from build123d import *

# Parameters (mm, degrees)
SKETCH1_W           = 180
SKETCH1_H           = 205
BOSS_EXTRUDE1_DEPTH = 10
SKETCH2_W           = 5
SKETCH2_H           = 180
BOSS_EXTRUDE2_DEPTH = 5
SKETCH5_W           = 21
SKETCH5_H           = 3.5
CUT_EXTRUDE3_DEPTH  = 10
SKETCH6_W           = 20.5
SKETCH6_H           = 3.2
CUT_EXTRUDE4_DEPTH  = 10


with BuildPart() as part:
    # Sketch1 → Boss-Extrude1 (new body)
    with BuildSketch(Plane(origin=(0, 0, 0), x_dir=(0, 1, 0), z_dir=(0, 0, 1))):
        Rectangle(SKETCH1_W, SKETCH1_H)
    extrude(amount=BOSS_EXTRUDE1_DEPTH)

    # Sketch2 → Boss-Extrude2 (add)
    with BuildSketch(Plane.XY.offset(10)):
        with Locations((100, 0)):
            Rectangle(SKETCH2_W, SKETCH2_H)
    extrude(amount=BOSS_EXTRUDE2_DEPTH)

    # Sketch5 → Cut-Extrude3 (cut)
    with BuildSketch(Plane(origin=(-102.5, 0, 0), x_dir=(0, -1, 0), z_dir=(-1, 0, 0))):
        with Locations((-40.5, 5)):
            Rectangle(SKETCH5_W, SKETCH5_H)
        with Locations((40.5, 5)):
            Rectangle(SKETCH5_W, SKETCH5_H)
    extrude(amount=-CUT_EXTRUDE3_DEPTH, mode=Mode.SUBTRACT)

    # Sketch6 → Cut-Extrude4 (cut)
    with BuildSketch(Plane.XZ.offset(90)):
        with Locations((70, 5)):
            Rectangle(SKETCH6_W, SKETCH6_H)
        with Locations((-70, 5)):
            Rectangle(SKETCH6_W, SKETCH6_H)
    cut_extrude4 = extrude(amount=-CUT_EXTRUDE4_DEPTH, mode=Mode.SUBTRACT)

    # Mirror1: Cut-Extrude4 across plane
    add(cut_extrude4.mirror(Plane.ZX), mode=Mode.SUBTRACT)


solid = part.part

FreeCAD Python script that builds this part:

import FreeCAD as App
import Part
import Sketcher

V = App.Vector
Q = App.Units.Quantity

doc = App.newDocument("Part")
params = doc.addObject("Spreadsheet::Sheet", "Params")
for row, (alias, value) in enumerate([
    ("sketch1_width", "205 mm"),
    ("sketch1_height", "180 mm"),
    ("pad1_length", "10 mm"),
    ("sketch2_width", "5 mm"),
    ("sketch2_height", "180 mm"),
    ("pad2_length", "5 mm"),
    ("sketch3_width", "21 mm"),
    ("sketch3_height", "3.5 mm"),
    ("pocket1_length", "10 mm"),
    ("sketch4_width", "20.5 mm"),
    ("sketch4_height", "3.2 mm"),
    ("pocket2_length", "10 mm"),
], start=1):
    params.set(f"A{row}", alias)
    params.set(f"B{row}", "=" + value)
    params.setAlias(f"B{row}", alias)

body = doc.addObject("PartDesign::Body", "Body")

sketch1 = body.newObject("Sketcher::SketchObject", "Sketch")
sketch1.AttachmentSupport = (doc.getObject("XY_Plane"), [""])
sketch1.MapMode = "FlatFace"
sketch1.addGeometry(Part.LineSegment(V(-102.5, -90, 0), V(102.5, -90, 0)), False)
sketch1.addGeometry(Part.LineSegment(V(102.5, -90, 0), V(102.5, 90, 0)), False)
sketch1.addGeometry(Part.LineSegment(V(102.5, 90, 0), V(-102.5, 90, 0)), False)
sketch1.addGeometry(Part.LineSegment(V(-102.5, 90, 0), V(-102.5, -90, 0)), False)
sketch1.addConstraint(Sketcher.Constraint("Coincident", 0, 2, 1, 1))
sketch1.addConstraint(Sketcher.Constraint("Coincident", 1, 2, 2, 1))
sketch1.addConstraint(Sketcher.Constraint("Coincident", 2, 2, 3, 1))
sketch1.addConstraint(Sketcher.Constraint("Coincident", 3, 2, 0, 1))
sketch1.addConstraint(Sketcher.Constraint("Horizontal", 0))
sketch1.addConstraint(Sketcher.Constraint("Vertical", 1))
sketch1.addConstraint(Sketcher.Constraint("Horizontal", 2))
sketch1.addConstraint(Sketcher.Constraint("Vertical", 3))
sketch1.addConstraint(Sketcher.Constraint("Symmetric", 0, 2, 2, 2, -1, 1))
sketch1.addConstraint(Sketcher.Constraint("DistanceX", 0, 1, 0, 2, Q("205 mm")))
sketch1.addConstraint(Sketcher.Constraint("DistanceY", 1, 1, 1, 2, Q("180 mm")))
sketch1.setExpression("Constraints[9]", "Params.sketch1_width")
sketch1.setExpression("Constraints[10]", "Params.sketch1_height")
pad1 = body.newObject("PartDesign::Pad", "Pad")
pad1.Profile = sketch1
pad1.setExpression("Length", "Params.pad1_length")

sketch2 = body.newObject("Sketcher::SketchObject", "Sketch001")
sketch2.AttachmentSupport = (doc.getObject("XY_Plane"), [""])
sketch2.MapMode = "FlatFace"
sketch2.AttachmentOffset = App.Placement(V(0, 0, 10), App.Rotation())
sketch2.addGeometry(Part.LineSegment(V(97.5, 90, 0), V(97.5, -90, 0)), False)
sketch2.addGeometry(Part.LineSegment(V(97.5, -90, 0), V(102.5, -90, 0)), False)
sketch2.addGeometry(Part.LineSegment(V(102.5, -90, 0), V(102.5, 90, 0)), False)
sketch2.addGeometry(Part.LineSegment(V(102.5, 90, 0), V(97.5, 90, 0)), False)
sketch2.addConstraint(Sketcher.Constraint("Coincident", 0, 2, 1, 1))
sketch2.addConstraint(Sketcher.Constraint("Coincident", 1, 2, 2, 1))
sketch2.addConstraint(Sketcher.Constraint("Coincident", 2, 2, 3, 1))
sketch2.addConstraint(Sketcher.Constraint("Coincident", 3, 2, 0, 1))
sketch2.addConstraint(Sketcher.Constraint("Vertical", 0))
sketch2.addConstraint(Sketcher.Constraint("Horizontal", 1))
sketch2.addConstraint(Sketcher.Constraint("Vertical", 2))
sketch2.addConstraint(Sketcher.Constraint("Horizontal", 3))
sketch2.addConstraint(Sketcher.Constraint("DistanceX", 1, 1, 1, 2, Q("5 mm")))
sketch2.addConstraint(Sketcher.Constraint("DistanceY", 0, 2, 0, 1, Q("180 mm")))
sketch2.addConstraint(Sketcher.Constraint("DistanceY", 0, 2, -1, 1, Q("90 mm")))
sketch2.addConstraint(Sketcher.Constraint("DistanceX", -1, 1, 0, 2, Q("97.5 mm")))
sketch2.setExpression("Constraints[8]", "Params.sketch2_width")
sketch2.setExpression("Constraints[9]", "Params.sketch2_height")
pad2 = body.newObject("PartDesign::Pad", "Pad001")
pad2.Profile = sketch2
pad2.setExpression("Length", "Params.pad2_length")

sketch3 = body.newObject("Sketcher::SketchObject", "Sketch002")
sketch3.AttachmentSupport = (doc.getObject("YZ_Plane"), [""])
sketch3.MapMode = "FlatFace"
sketch3.AttachmentOffset = App.Placement(V(0, 0, -102.5), App.Rotation())
sketch3.addGeometry(Part.LineSegment(V(51, 6.75, 0), V(51, 3.25, 0)), False)
sketch3.addGeometry(Part.LineSegment(V(51, 3.25, 0), V(30, 3.25, 0)), False)
sketch3.addGeometry(Part.LineSegment(V(30, 3.25, 0), V(30, 6.75, 0)), False)
sketch3.addGeometry(Part.LineSegment(V(30, 6.75, 0), V(51, 6.75, 0)), False)
sketch3.addGeometry(Part.LineSegment(V(-30, 6.75, 0), V(-30, 3.25, 0)), False)
sketch3.addGeometry(Part.LineSegment(V(-30, 3.25, 0), V(-51, 3.25, 0)), False)
sketch3.addGeometry(Part.LineSegment(V(-51, 3.25, 0), V(-51, 6.75, 0)), False)
sketch3.addGeometry(Part.LineSegment(V(-51, 6.75, 0), V(-30, 6.75, 0)), False)
sketch3.addConstraint(Sketcher.Constraint("Coincident", 0, 2, 1, 1))
sketch3.addConstraint(Sketcher.Constraint("Coincident", 1, 2, 2, 1))
sketch3.addConstraint(Sketcher.Constraint("Coincident", 2, 2, 3, 1))
sketch3.addConstraint(Sketcher.Constraint("Coincident", 3, 2, 0, 1))
sketch3.addConstraint(Sketcher.Constraint("Coincident", 4, 2, 5, 1))
sketch3.addConstraint(Sketcher.Constraint("Coincident", 5, 2, 6, 1))
sketch3.addConstraint(Sketcher.Constraint("Coincident", 6, 2, 7, 1))
sketch3.addConstraint(Sketcher.Constraint("Coincident", 7, 2, 4, 1))
sketch3.addConstraint(Sketcher.Constraint("Vertical", 0))
sketch3.addConstraint(Sketcher.Constraint("Horizontal", 1))
sketch3.addConstraint(Sketcher.Constraint("Vertical", 2))
sketch3.addConstraint(Sketcher.Constraint("Horizontal", 3))
sketch3.addConstraint(Sketcher.Constraint("Vertical", 4))
sketch3.addConstraint(Sketcher.Constraint("Horizontal", 5))
sketch3.addConstraint(Sketcher.Constraint("Vertical", 6))
sketch3.addConstraint(Sketcher.Constraint("Horizontal", 7))
sketch3.addConstraint(Sketcher.Constraint("Symmetric", 1, 2, 4, 2, -2))
sketch3.addConstraint(Sketcher.Constraint("Symmetric", 3, 2, 6, 2, -2))
sketch3.addConstraint(Sketcher.Constraint("DistanceX", 1, 2, 1, 1, Q("21 mm")))
sketch3.addConstraint(Sketcher.Constraint("DistanceY", 0, 2, 0, 1, Q("3.5 mm")))
sketch3.addConstraint(Sketcher.Constraint("DistanceX", -1, 1, 0, 2, Q("51 mm")))
sketch3.addConstraint(Sketcher.Constraint("DistanceY", -1, 1, 0, 2, Q("3.25 mm")))
sketch3.setExpression("Constraints[18]", "Params.sketch3_width")
sketch3.setExpression("Constraints[19]", "Params.sketch3_height")
pocket1 = body.newObject("PartDesign::Pocket", "Pocket")
pocket1.Profile = sketch3
pocket1.setExpression("Length", "Params.pocket1_length")
pocket1.Reversed = True

sketch4 = body.newObject("Sketcher::SketchObject", "Sketch003")
sketch4.AttachmentSupport = (doc.getObject("XZ_Plane"), [""])
sketch4.MapMode = "FlatFace"
sketch4.AttachmentOffset = App.Placement(V(0, 0, 90), App.Rotation())
sketch4.addGeometry(Part.LineSegment(V(59.75, 6.6, 0), V(59.75, 3.4, 0)), False)
sketch4.addGeometry(Part.LineSegment(V(59.75, 3.4, 0), V(80.25, 3.4, 0)), False)
sketch4.addGeometry(Part.LineSegment(V(80.25, 3.4, 0), V(80.25, 6.6, 0)), False)
sketch4.addGeometry(Part.LineSegment(V(80.25, 6.6, 0), V(59.75, 6.6, 0)), False)
sketch4.addGeometry(Part.LineSegment(V(-80.25, 6.6, 0), V(-80.25, 3.4, 0)), False)
sketch4.addGeometry(Part.LineSegment(V(-80.25, 3.4, 0), V(-59.75, 3.4, 0)), False)
sketch4.addGeometry(Part.LineSegment(V(-59.75, 3.4, 0), V(-59.75, 6.6, 0)), False)
sketch4.addGeometry(Part.LineSegment(V(-59.75, 6.6, 0), V(-80.25, 6.6, 0)), False)
sketch4.addConstraint(Sketcher.Constraint("Coincident", 0, 2, 1, 1))
sketch4.addConstraint(Sketcher.Constraint("Coincident", 1, 2, 2, 1))
sketch4.addConstraint(Sketcher.Constraint("Coincident", 2, 2, 3, 1))
sketch4.addConstraint(Sketcher.Constraint("Coincident", 3, 2, 0, 1))
sketch4.addConstraint(Sketcher.Constraint("Coincident", 4, 2, 5, 1))
sketch4.addConstraint(Sketcher.Constraint("Coincident", 5, 2, 6, 1))
sketch4.addConstraint(Sketcher.Constraint("Coincident", 6, 2, 7, 1))
sketch4.addConstraint(Sketcher.Constraint("Coincident", 7, 2, 4, 1))
sketch4.addConstraint(Sketcher.Constraint("Vertical", 0))
sketch4.addConstraint(Sketcher.Constraint("Horizontal", 1))
sketch4.addConstraint(Sketcher.Constraint("Vertical", 2))
sketch4.addConstraint(Sketcher.Constraint("Horizontal", 3))
sketch4.addConstraint(Sketcher.Constraint("Vertical", 4))
sketch4.addConstraint(Sketcher.Constraint("Horizontal", 5))
sketch4.addConstraint(Sketcher.Constraint("Vertical", 6))
sketch4.addConstraint(Sketcher.Constraint("Horizontal", 7))
sketch4.addConstraint(Sketcher.Constraint("Symmetric", 1, 2, 4, 2, -2))
sketch4.addConstraint(Sketcher.Constraint("Symmetric", 3, 2, 6, 2, -2))
sketch4.addConstraint(Sketcher.Constraint("DistanceX", 1, 1, 1, 2, Q("20.5 mm")))
sketch4.addConstraint(Sketcher.Constraint("DistanceY", 0, 2, 0, 1, Q("3.2 mm")))
sketch4.addConstraint(Sketcher.Constraint("DistanceX", 4, 2, 0, 2, Q("140 mm")))
sketch4.addConstraint(Sketcher.Constraint("DistanceY", -1, 1, 0, 2, Q("3.4 mm")))
sketch4.setExpression("Constraints[18]", "Params.sketch4_width")
sketch4.setExpression("Constraints[19]", "Params.sketch4_height")
pocket2 = body.newObject("PartDesign::Pocket", "Pocket001")
pocket2.Profile = sketch4
pocket2.setExpression("Length", "Params.pocket2_length")
doc.recompute()

mirrored = body.newObject("PartDesign::Mirrored", "Mirrored")
mirrored.Originals = [pocket2]
mirrored.MirrorPlane = (doc.getObject("XZ_Plane"), [""])
body.Tip = mirrored

doc.recompute()
